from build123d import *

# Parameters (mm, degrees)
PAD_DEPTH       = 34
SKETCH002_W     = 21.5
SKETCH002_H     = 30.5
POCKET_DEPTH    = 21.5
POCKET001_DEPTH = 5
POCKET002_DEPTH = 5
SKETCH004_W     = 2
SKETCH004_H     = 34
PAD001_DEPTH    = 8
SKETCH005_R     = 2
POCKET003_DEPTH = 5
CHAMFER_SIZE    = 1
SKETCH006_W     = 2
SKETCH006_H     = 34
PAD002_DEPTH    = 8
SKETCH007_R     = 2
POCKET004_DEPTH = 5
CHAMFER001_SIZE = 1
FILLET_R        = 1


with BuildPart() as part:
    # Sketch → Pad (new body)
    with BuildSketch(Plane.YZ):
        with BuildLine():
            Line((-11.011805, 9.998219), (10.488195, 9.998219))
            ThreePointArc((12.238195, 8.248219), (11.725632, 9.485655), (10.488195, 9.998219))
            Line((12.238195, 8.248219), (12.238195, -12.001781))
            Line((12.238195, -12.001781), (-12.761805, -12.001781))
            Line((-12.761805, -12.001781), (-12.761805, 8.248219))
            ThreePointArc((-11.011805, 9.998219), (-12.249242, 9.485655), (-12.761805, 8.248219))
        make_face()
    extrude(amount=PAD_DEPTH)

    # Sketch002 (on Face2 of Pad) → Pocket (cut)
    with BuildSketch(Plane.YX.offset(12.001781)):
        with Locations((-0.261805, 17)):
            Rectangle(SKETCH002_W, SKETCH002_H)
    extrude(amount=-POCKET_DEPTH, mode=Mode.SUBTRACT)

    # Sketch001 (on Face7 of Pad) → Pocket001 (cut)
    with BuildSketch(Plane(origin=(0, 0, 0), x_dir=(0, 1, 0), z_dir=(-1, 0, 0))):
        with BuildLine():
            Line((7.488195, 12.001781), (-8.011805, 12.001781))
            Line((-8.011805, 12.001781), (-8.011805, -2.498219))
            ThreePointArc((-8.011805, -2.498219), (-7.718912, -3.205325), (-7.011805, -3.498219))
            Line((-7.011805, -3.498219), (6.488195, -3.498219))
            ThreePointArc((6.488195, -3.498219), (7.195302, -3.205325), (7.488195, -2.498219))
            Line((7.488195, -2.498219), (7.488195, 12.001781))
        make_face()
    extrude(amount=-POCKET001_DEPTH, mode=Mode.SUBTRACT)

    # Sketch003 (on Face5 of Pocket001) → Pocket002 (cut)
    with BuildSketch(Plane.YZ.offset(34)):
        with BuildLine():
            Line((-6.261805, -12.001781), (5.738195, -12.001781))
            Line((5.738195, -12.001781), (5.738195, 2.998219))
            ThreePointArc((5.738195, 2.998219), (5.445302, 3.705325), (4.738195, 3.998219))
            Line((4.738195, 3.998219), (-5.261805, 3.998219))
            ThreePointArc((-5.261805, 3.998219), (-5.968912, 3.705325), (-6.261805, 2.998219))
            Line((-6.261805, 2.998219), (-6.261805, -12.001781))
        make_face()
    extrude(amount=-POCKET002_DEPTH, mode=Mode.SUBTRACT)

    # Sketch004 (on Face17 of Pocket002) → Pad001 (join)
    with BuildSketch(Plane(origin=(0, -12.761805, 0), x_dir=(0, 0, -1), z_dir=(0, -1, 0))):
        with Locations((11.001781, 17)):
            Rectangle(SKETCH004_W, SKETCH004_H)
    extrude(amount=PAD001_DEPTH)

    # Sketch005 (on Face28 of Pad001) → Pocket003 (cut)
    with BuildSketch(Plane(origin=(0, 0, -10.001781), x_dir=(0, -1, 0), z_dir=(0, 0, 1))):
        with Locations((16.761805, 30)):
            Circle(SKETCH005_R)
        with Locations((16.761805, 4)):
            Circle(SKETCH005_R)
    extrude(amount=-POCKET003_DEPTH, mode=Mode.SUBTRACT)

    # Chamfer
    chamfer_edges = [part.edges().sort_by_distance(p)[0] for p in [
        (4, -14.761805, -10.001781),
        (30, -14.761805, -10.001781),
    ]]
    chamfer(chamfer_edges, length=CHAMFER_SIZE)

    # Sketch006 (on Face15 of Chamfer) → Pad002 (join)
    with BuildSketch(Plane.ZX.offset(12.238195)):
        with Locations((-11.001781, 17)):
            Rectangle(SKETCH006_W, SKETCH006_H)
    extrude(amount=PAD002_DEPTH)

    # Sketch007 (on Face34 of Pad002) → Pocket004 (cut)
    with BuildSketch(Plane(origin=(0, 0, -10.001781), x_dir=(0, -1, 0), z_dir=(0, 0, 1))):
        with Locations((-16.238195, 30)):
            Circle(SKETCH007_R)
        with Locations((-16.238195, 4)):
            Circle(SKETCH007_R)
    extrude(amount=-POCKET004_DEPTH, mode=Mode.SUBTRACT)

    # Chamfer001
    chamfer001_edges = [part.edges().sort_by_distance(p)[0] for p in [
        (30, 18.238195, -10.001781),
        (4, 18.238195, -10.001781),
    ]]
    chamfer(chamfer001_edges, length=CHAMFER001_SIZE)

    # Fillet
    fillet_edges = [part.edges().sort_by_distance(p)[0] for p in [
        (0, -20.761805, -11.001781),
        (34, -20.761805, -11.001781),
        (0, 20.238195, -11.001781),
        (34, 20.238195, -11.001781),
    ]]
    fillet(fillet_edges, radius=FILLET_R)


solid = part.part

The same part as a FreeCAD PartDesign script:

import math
import FreeCAD as App
import Part
import Sketcher
from FreeCAD import Vector
Q = App.Units.Quantity


def edges_at(feature, points):
    """Names of the edges that pass closest to the given points."""
    edges = feature.Shape.Edges
    near = lambda p: min(range(len(edges)), key=lambda i: edges[i].distToShape(Part.Vertex(*p))[0])
    return sorted({f"Edge{near(p) + 1}" for p in points})


def add_polygon(sketch, points):
    """Adds a closed chain of lines whose ends are joined by coincident constraints."""
    first, n = sketch.GeometryCount, len(points)
    for a, b in zip(points, points[1:] + points[:1]):
        sketch.addGeometry(Part.LineSegment(App.Vector(*a, 0), App.Vector(*b, 0)), False)
    for i in range(n):
        sketch.addConstraint(Sketcher.Constraint("Coincident", first + i, 2, first + (i + 1) % n, 1))

doc = App.newDocument("Part")
body = doc.addObject("PartDesign::Body", "Body")

# Sketch on YZ plane
sketch1 = doc.addObject("Sketcher::SketchObject", "Sketch")
body.addObject(sketch1)
sketch1.AttachmentSupport = (doc.YZ_Plane, [""])
sketch1.MapMode = "FlatFace"
sketch1.addGeometry([
    Part.LineSegment(Vector(10.488195, 9.998219, 0), Vector(-11.011805, 9.998219, 0)),  # 0
    Part.ArcOfCircle(Part.Circle(Vector(-11.011804, 8.248218, 0), Vector(0, 0, 1), 1.750001), math.radians(90.000041), math.radians(179.999959)),  # 1
    Part.LineSegment(Vector(-12.761805, 8.248219, 0), Vector(-12.761805, -12.001781, 0)),  # 2
    Part.LineSegment(Vector(-12.761805, -12.001781, 0), Vector(12.238195, -12.001781, 0)),  # 3
    Part.LineSegment(Vector(12.238195, -12.001781, 0), Vector(12.238195, 8.248219, 0)),  # 4
    Part.ArcOfCircle(Part.Circle(Vector(10.488194, 8.248218, 0), Vector(0, 0, 1), 1.750001), math.radians(0.000041), math.radians(89.999959)),  # 5
], False)
sketch1.addConstraint([
    Sketcher.Constraint("Tangent", 0, 2, 1, 1),
    Sketcher.Constraint("Tangent", 1, 2, 2, 1),
    Sketcher.Constraint("Coincident", 2, 2, 3, 1),
    Sketcher.Constraint("Coincident", 3, 2, 4, 1),
    Sketcher.Constraint("Tangent", 4, 2, 5, 1),
    Sketcher.Constraint("Tangent", 5, 2, 0, 1),
    Sketcher.Constraint("Horizontal", 0),
    Sketcher.Constraint("Vertical", 2),
    Sketcher.Constraint("Horizontal", 3),
    Sketcher.Constraint("Vertical", 4),
    Sketcher.Constraint("Equal", 1, 5),
    Sketcher.Constraint("DistanceX", 3, 1, 3, 2, Q("25 mm")),
    Sketcher.Constraint("Radius", 1, Q("1.750001 mm")),
    Sketcher.Constraint("DistanceY", 2, 2, 0, 2, Q("22 mm")),
    Sketcher.Constraint("DistanceY", -1, 1, 0, 2, Q("9.998219 mm")),
    Sketcher.Constraint("DistanceX", 1, 3, -1, 1, Q("11.011804 mm")),
])
pad1 = doc.addObject("PartDesign::Pad", "Pad")
body.addObject(pad1)
pad1.Profile = sketch1
pad1.Length = 34

# Sketch on XY plane
sketch2 = doc.addObject("Sketcher::SketchObject", "Sketch001")
body.addObject(sketch2)
sketch2.AttachmentSupport = (doc.XY_Plane, [""])
sketch2.MapMode = "FlatFace"
sketch2.AttachmentOffset = App.Placement(Vector(0, 0, -12.001781), App.Rotation())
add_polygon(sketch2, [(32.25, -11.011805), (1.75, -11.011805), (1.75, 10.488195), (32.25, 10.488195)])  # lines 0-3
sketch2.addConstraint([
    Sketcher.Constraint("Horizontal", 0),
    Sketcher.Constraint("Vertical", 1),
    Sketcher.Constraint("Horizontal", 2),
    Sketcher.Constraint("Vertical", 3),
    Sketcher.Constraint("DistanceX", 0, 2, 0, 1, Q("30.5 mm")),
    Sketcher.Constraint("DistanceY", 1, 1, 1, 2, Q("21.5 mm")),
    Sketcher.Constraint("DistanceX", -1, 1, 0, 2, Q("1.75 mm")),
    Sketcher.Constraint("DistanceY", 0, 2, -1, 1, Q("11.011805 mm")),
])
pocket1 = doc.addObject("PartDesign::Pocket", "Pocket")
body.addObject(pocket1)
pocket1.Profile = sketch2
pocket1.Length = 21.5
pocket1.Reversed = True

# Sketch on YZ plane
sketch3 = doc.addObject("Sketcher::SketchObject", "Sketch002")
body.addObject(sketch3)
sketch3.AttachmentSupport = (doc.YZ_Plane, [""])
sketch3.MapMode = "FlatFace"
sketch3.addGeometry([
    Part.LineSegment(Vector(7.488195, -12.001781, 0), Vector(-8.011805, -12.001781, 0)),  # 0
    Part.LineSegment(Vector(-8.011805, -12.001781, 0), Vector(-8.011805, 2.498219, 0)),  # 1
    Part.ArcOfCircle(Part.Circle(Vector(-7.011804, 2.498218, 0), Vector(0, 0, 1), 1.000001), math.radians(90.000055), math.radians(179.999945)),  # 2
    Part.LineSegment(Vector(-7.011805, 3.498219, 0), Vector(6.488195, 3.498219, 0)),  # 3
    Part.ArcOfCircle(Part.Circle(Vector(6.488194, 2.498218, 0), Vector(0, 0, 1), 1.000001), math.radians(0.000055), math.radians(89.999945)),  # 4
    Part.LineSegment(Vector(7.488195, 2.498219, 0), Vector(7.488195, -12.001781, 0)),  # 5
], False)
sketch3.addConstraint([
    Sketcher.Constraint("Coincident", 0, 2, 1, 1),
    Sketcher.Constraint("Tangent", 1, 2, 2, 2),
    Sketcher.Constraint("Tangent", 2, 1, 3, 1),
    Sketcher.Constraint("Tangent", 3, 2, 4, 2),
    Sketcher.Constraint("Tangent", 4, 1, 5, 1),
    Sketcher.Constraint("Coincident", 5, 2, 0, 1),
    Sketcher.Constraint("Horizontal", 0),
    Sketcher.Constraint("Vertical", 1),
    Sketcher.Constraint("Horizontal", 3),
    Sketcher.Constraint("Vertical", 5),
    Sketcher.Constraint("Equal", 2, 4),
    Sketcher.Constraint("Radius", 2, Q("1.000001 mm")),
    Sketcher.Constraint("DistanceX", 0, 2, 0, 1, Q("15.5 mm")),
    Sketcher.Constraint("DistanceY", 1, 1, 1, 2, Q("14.5 mm")),
    Sketcher.Constraint("DistanceY", -1, 1, 2, 3, Q("2.498218 mm")),
    Sketcher.Constraint("DistanceX", 2, 3, -1, 1, Q("7.011804 mm")),
])
pocket2 = doc.addObject("PartDesign::Pocket", "Pocket001")
body.addObject(pocket2)
pocket2.Profile = sketch3
pocket2.Length = 5
pocket2.Reversed = True

# Sketch on YZ plane
sketch4 = doc.addObject("Sketcher::SketchObject", "Sketch003")
body.addObject(sketch4)
sketch4.AttachmentSupport = (doc.YZ_Plane, [""])
sketch4.MapMode = "FlatFace"
sketch4.AttachmentOffset = App.Placement(Vector(0, 0, 34), App.Rotation())
sketch4.addGeometry([
    Part.LineSegment(Vector(-6.261805, -12.001781, 0), Vector(5.738195, -12.001781, 0)),  # 0
    Part.LineSegment(Vector(5.738195, -12.001781, 0), Vector(5.738195, 2.998219, 0)),  # 1
    Part.ArcOfCircle(Part.Circle(Vector(4.738194, 2.998218, 0), Vector(0, 0, 1), 1.000001), math.radians(0.000055), math.radians(89.999945)),  # 2
    Part.LineSegment(Vector(4.738195, 3.998219, 0), Vector(-5.261805, 3.998219, 0)),  # 3
    Part.ArcOfCircle(Part.Circle(Vector(-5.261804, 2.998218, 0), Vector(0, 0, 1), 1.000001), math.radians(90.000055), math.radians(179.999945)),  # 4
    Part.LineSegment(Vector(-6.261805, 2.998219, 0), Vector(-6.261805, -12.001781, 0)),  # 5
], False)
sketch4.addConstraint([
    Sketcher.Constraint("Coincident", 0, 2, 1, 1),
    Sketcher.Constraint("Tangent", 1, 2, 2, 1),
    Sketcher.Constraint("Tangent", 2, 2, 3, 1),
    Sketcher.Constraint("Tangent", 3, 2, 4, 1),
    Sketcher.Constraint("Tangent", 4, 2, 5, 1),
    Sketcher.Constraint("Coincident", 5, 2, 0, 1),
    Sketcher.Constraint("Horizontal", 0),
    Sketcher.Constraint("Vertical", 1),
    Sketcher.Constraint("Horizontal", 3),
    Sketcher.Constraint("Vertical", 5),
    Sketcher.Constraint("Equal", 2, 4),
    Sketcher.Constraint("Radius", 2, Q("1.000001 mm")),
    Sketcher.Constraint("DistanceX", 0, 1, 0, 2, Q("12 mm")),
    Sketcher.Constraint("DistanceY", 1, 1, 1, 2, Q("15 mm")),
    Sketcher.Constraint("DistanceY", -1, 1, 2, 3, Q("2.998218 mm")),
    Sketcher.Constraint("DistanceX", -1, 1, 2, 3, Q("4.738194 mm")),
])
pocket3 = doc.addObject("PartDesign::Pocket", "Pocket002")
body.addObject(pocket3)
pocket3.Profile = sketch4
pocket3.Length = 5

# Sketch on XZ plane
sketch5 = doc.addObject("Sketcher::SketchObject", "Sketch004")
body.addObject(sketch5)
sketch5.AttachmentSupport = (doc.XZ_Plane, [""])
sketch5.MapMode = "FlatFace"
sketch5.AttachmentOffset = App.Placement(Vector(0, 0, 12.761805), App.Rotation())
add_polygon(sketch5, [(34, -10.001781), (0, -10.001781), (0, -12.001781), (34, -12.001781)])  # lines 0-3
sketch5.addConstraint([
    Sketcher.Constraint("Horizontal", 0),
    Sketcher.Constraint("Vertical", 1),
    Sketcher.Constraint("Horizontal", 2),
    Sketcher.Constraint("Vertical", 3),
    Sketcher.Constraint("PointOnObject", 0, 2, -2),
    Sketcher.Constraint("DistanceX", 0, 2, 0, 1, Q("34 mm")),
    Sketcher.Constraint("DistanceY", 1, 2, 1, 1, Q("2 mm")),
    Sketcher.Constraint("DistanceY", 0, 2, -1, 1, Q("10.001781 mm")),
])
pad2 = doc.addObject("PartDesign::Pad", "Pad001")
body.addObject(pad2)
pad2.Profile = sketch5
pad2.Length = 8

# Sketch on XY plane
sketch6 = doc.addObject("Sketcher::SketchObject", "Sketch005")
body.addObject(sketch6)
sketch6.AttachmentSupport = (doc.XY_Plane, [""])
sketch6.MapMode = "FlatFace"
sketch6.AttachmentOffset = App.Placement(Vector(0, 0, -10.001781), App.Rotation())
sketch6.addGeometry([
    Part.Circle(Vector(30, -16.761805, 0), Vector(0, 0, 1), 2),
    Part.Circle(Vector(4, -16.761805, 0), Vector(0, 0, 1), 2),
], False)
sketch6.addConstraint([
    Sketcher.Constraint("Equal", 0, 1),
    Sketcher.Constraint("Horizontal", 0, 3, 1, 3),
    Sketcher.Constraint("Diameter", 0, Q("4 mm")),
    Sketcher.Constraint("DistanceX", -1, 1, 0, 3, Q("30 mm")),
    Sketcher.Constraint("DistanceX", -1, 1, 1, 3, Q("4 mm")),
    Sketcher.Constraint("DistanceY", 0, 3, -1, 1, Q("16.761805 mm")),
])
pocket4 = doc.addObject("PartDesign::Pocket", "Pocket003")
body.addObject(pocket4)
pocket4.Profile = sketch6
pocket4.Length = 5
doc.recompute()

chamfer = doc.addObject("PartDesign::Chamfer", "Chamfer")
body.addObject(chamfer)
chamfer.Base = (pocket4, edges_at(pocket4, [(4, -14.762, -10.002), (30, -14.762, -10.002)]))
chamfer.Size = 1

# Sketch on XZ plane
sketch7 = doc.addObject("Sketcher::SketchObject", "Sketch006")
body.addObject(sketch7)
sketch7.AttachmentSupport = (doc.XZ_Plane, [""])
sketch7.MapMode = "FlatFace"
sketch7.AttachmentOffset = App.Placement(Vector(0, 0, -12.238195), App.Rotation())
add_polygon(sketch7, [(34, -12.001781), (0, -12.001781), (0, -10.001781), (34, -10.001781)])  # lines 0-3
sketch7.addConstraint([
    Sketcher.Constraint("Horizontal", 0),
    Sketcher.Constraint("Vertical", 1),
    Sketcher.Constraint("Horizontal", 2),
    Sketcher.Constraint("Vertical", 3),
    Sketcher.Constraint("PointOnObject", 0, 2, -2),
    Sketcher.Constraint("DistanceX", 0, 2, 0, 1, Q("34 mm")),
    Sketcher.Constraint("DistanceY", 1, 1, 1, 2, Q("2 mm")),
    Sketcher.Constraint("DistanceY", 0, 2, -1, 1, Q("12.001781 mm")),
])
pad3 = doc.addObject("PartDesign::Pad", "Pad002")
body.addObject(pad3)
pad3.Profile = sketch7
pad3.Length = 8
pad3.Reversed = True

# Sketch on XY plane
sketch8 = doc.addObject("Sketcher::SketchObject", "Sketch007")
body.addObject(sketch8)
sketch8.AttachmentSupport = (doc.XY_Plane, [""])
sketch8.MapMode = "FlatFace"
sketch8.AttachmentOffset = App.Placement(Vector(0, 0, -10.001781), App.Rotation())
sketch8.addGeometry([
    Part.Circle(Vector(30, 16.238195, 0), Vector(0, 0, 1), 2),
    Part.Circle(Vector(4, 16.238195, 0), Vector(0, 0, 1), 2),
], False)
sketch8.addConstraint([
    Sketcher.Constraint("Equal", 0, 1),
    Sketcher.Constraint("Horizontal", 0, 3, 1, 3),
    Sketcher.Constraint("Diameter", 0, Q("4 mm")),
    Sketcher.Constraint("DistanceX", -1, 1, 0, 3, Q("30 mm")),
    Sketcher.Constraint("DistanceX", -1, 1, 1, 3, Q("4 mm")),
    Sketcher.Constraint("DistanceY", -1, 1, 0, 3, Q("16.238195 mm")),
])
pocket5 = doc.addObject("PartDesign::Pocket", "Pocket004")
body.addObject(pocket5)
pocket5.Profile = sketch8
pocket5.Length = 5
doc.recompute()

chamfer2 = doc.addObject("PartDesign::Chamfer", "Chamfer001")
body.addObject(chamfer2)
chamfer2.Base = (pocket5, edges_at(pocket5, [(30, 18.238, -10.002), (4, 18.238, -10.002)]))
chamfer2.Size = 1
doc.recompute()

fillet = doc.addObject("PartDesign::Fillet", "Fillet")
body.addObject(fillet)
fillet.Base = (chamfer2, edges_at(chamfer2, [
    (0, -20.762, -11.002),
    (34, -20.762, -11.002),
    (0, 20.238, -11.002),
    (34, 20.238, -11.002),
]))
fillet.Radius = 1

doc.recompute()
